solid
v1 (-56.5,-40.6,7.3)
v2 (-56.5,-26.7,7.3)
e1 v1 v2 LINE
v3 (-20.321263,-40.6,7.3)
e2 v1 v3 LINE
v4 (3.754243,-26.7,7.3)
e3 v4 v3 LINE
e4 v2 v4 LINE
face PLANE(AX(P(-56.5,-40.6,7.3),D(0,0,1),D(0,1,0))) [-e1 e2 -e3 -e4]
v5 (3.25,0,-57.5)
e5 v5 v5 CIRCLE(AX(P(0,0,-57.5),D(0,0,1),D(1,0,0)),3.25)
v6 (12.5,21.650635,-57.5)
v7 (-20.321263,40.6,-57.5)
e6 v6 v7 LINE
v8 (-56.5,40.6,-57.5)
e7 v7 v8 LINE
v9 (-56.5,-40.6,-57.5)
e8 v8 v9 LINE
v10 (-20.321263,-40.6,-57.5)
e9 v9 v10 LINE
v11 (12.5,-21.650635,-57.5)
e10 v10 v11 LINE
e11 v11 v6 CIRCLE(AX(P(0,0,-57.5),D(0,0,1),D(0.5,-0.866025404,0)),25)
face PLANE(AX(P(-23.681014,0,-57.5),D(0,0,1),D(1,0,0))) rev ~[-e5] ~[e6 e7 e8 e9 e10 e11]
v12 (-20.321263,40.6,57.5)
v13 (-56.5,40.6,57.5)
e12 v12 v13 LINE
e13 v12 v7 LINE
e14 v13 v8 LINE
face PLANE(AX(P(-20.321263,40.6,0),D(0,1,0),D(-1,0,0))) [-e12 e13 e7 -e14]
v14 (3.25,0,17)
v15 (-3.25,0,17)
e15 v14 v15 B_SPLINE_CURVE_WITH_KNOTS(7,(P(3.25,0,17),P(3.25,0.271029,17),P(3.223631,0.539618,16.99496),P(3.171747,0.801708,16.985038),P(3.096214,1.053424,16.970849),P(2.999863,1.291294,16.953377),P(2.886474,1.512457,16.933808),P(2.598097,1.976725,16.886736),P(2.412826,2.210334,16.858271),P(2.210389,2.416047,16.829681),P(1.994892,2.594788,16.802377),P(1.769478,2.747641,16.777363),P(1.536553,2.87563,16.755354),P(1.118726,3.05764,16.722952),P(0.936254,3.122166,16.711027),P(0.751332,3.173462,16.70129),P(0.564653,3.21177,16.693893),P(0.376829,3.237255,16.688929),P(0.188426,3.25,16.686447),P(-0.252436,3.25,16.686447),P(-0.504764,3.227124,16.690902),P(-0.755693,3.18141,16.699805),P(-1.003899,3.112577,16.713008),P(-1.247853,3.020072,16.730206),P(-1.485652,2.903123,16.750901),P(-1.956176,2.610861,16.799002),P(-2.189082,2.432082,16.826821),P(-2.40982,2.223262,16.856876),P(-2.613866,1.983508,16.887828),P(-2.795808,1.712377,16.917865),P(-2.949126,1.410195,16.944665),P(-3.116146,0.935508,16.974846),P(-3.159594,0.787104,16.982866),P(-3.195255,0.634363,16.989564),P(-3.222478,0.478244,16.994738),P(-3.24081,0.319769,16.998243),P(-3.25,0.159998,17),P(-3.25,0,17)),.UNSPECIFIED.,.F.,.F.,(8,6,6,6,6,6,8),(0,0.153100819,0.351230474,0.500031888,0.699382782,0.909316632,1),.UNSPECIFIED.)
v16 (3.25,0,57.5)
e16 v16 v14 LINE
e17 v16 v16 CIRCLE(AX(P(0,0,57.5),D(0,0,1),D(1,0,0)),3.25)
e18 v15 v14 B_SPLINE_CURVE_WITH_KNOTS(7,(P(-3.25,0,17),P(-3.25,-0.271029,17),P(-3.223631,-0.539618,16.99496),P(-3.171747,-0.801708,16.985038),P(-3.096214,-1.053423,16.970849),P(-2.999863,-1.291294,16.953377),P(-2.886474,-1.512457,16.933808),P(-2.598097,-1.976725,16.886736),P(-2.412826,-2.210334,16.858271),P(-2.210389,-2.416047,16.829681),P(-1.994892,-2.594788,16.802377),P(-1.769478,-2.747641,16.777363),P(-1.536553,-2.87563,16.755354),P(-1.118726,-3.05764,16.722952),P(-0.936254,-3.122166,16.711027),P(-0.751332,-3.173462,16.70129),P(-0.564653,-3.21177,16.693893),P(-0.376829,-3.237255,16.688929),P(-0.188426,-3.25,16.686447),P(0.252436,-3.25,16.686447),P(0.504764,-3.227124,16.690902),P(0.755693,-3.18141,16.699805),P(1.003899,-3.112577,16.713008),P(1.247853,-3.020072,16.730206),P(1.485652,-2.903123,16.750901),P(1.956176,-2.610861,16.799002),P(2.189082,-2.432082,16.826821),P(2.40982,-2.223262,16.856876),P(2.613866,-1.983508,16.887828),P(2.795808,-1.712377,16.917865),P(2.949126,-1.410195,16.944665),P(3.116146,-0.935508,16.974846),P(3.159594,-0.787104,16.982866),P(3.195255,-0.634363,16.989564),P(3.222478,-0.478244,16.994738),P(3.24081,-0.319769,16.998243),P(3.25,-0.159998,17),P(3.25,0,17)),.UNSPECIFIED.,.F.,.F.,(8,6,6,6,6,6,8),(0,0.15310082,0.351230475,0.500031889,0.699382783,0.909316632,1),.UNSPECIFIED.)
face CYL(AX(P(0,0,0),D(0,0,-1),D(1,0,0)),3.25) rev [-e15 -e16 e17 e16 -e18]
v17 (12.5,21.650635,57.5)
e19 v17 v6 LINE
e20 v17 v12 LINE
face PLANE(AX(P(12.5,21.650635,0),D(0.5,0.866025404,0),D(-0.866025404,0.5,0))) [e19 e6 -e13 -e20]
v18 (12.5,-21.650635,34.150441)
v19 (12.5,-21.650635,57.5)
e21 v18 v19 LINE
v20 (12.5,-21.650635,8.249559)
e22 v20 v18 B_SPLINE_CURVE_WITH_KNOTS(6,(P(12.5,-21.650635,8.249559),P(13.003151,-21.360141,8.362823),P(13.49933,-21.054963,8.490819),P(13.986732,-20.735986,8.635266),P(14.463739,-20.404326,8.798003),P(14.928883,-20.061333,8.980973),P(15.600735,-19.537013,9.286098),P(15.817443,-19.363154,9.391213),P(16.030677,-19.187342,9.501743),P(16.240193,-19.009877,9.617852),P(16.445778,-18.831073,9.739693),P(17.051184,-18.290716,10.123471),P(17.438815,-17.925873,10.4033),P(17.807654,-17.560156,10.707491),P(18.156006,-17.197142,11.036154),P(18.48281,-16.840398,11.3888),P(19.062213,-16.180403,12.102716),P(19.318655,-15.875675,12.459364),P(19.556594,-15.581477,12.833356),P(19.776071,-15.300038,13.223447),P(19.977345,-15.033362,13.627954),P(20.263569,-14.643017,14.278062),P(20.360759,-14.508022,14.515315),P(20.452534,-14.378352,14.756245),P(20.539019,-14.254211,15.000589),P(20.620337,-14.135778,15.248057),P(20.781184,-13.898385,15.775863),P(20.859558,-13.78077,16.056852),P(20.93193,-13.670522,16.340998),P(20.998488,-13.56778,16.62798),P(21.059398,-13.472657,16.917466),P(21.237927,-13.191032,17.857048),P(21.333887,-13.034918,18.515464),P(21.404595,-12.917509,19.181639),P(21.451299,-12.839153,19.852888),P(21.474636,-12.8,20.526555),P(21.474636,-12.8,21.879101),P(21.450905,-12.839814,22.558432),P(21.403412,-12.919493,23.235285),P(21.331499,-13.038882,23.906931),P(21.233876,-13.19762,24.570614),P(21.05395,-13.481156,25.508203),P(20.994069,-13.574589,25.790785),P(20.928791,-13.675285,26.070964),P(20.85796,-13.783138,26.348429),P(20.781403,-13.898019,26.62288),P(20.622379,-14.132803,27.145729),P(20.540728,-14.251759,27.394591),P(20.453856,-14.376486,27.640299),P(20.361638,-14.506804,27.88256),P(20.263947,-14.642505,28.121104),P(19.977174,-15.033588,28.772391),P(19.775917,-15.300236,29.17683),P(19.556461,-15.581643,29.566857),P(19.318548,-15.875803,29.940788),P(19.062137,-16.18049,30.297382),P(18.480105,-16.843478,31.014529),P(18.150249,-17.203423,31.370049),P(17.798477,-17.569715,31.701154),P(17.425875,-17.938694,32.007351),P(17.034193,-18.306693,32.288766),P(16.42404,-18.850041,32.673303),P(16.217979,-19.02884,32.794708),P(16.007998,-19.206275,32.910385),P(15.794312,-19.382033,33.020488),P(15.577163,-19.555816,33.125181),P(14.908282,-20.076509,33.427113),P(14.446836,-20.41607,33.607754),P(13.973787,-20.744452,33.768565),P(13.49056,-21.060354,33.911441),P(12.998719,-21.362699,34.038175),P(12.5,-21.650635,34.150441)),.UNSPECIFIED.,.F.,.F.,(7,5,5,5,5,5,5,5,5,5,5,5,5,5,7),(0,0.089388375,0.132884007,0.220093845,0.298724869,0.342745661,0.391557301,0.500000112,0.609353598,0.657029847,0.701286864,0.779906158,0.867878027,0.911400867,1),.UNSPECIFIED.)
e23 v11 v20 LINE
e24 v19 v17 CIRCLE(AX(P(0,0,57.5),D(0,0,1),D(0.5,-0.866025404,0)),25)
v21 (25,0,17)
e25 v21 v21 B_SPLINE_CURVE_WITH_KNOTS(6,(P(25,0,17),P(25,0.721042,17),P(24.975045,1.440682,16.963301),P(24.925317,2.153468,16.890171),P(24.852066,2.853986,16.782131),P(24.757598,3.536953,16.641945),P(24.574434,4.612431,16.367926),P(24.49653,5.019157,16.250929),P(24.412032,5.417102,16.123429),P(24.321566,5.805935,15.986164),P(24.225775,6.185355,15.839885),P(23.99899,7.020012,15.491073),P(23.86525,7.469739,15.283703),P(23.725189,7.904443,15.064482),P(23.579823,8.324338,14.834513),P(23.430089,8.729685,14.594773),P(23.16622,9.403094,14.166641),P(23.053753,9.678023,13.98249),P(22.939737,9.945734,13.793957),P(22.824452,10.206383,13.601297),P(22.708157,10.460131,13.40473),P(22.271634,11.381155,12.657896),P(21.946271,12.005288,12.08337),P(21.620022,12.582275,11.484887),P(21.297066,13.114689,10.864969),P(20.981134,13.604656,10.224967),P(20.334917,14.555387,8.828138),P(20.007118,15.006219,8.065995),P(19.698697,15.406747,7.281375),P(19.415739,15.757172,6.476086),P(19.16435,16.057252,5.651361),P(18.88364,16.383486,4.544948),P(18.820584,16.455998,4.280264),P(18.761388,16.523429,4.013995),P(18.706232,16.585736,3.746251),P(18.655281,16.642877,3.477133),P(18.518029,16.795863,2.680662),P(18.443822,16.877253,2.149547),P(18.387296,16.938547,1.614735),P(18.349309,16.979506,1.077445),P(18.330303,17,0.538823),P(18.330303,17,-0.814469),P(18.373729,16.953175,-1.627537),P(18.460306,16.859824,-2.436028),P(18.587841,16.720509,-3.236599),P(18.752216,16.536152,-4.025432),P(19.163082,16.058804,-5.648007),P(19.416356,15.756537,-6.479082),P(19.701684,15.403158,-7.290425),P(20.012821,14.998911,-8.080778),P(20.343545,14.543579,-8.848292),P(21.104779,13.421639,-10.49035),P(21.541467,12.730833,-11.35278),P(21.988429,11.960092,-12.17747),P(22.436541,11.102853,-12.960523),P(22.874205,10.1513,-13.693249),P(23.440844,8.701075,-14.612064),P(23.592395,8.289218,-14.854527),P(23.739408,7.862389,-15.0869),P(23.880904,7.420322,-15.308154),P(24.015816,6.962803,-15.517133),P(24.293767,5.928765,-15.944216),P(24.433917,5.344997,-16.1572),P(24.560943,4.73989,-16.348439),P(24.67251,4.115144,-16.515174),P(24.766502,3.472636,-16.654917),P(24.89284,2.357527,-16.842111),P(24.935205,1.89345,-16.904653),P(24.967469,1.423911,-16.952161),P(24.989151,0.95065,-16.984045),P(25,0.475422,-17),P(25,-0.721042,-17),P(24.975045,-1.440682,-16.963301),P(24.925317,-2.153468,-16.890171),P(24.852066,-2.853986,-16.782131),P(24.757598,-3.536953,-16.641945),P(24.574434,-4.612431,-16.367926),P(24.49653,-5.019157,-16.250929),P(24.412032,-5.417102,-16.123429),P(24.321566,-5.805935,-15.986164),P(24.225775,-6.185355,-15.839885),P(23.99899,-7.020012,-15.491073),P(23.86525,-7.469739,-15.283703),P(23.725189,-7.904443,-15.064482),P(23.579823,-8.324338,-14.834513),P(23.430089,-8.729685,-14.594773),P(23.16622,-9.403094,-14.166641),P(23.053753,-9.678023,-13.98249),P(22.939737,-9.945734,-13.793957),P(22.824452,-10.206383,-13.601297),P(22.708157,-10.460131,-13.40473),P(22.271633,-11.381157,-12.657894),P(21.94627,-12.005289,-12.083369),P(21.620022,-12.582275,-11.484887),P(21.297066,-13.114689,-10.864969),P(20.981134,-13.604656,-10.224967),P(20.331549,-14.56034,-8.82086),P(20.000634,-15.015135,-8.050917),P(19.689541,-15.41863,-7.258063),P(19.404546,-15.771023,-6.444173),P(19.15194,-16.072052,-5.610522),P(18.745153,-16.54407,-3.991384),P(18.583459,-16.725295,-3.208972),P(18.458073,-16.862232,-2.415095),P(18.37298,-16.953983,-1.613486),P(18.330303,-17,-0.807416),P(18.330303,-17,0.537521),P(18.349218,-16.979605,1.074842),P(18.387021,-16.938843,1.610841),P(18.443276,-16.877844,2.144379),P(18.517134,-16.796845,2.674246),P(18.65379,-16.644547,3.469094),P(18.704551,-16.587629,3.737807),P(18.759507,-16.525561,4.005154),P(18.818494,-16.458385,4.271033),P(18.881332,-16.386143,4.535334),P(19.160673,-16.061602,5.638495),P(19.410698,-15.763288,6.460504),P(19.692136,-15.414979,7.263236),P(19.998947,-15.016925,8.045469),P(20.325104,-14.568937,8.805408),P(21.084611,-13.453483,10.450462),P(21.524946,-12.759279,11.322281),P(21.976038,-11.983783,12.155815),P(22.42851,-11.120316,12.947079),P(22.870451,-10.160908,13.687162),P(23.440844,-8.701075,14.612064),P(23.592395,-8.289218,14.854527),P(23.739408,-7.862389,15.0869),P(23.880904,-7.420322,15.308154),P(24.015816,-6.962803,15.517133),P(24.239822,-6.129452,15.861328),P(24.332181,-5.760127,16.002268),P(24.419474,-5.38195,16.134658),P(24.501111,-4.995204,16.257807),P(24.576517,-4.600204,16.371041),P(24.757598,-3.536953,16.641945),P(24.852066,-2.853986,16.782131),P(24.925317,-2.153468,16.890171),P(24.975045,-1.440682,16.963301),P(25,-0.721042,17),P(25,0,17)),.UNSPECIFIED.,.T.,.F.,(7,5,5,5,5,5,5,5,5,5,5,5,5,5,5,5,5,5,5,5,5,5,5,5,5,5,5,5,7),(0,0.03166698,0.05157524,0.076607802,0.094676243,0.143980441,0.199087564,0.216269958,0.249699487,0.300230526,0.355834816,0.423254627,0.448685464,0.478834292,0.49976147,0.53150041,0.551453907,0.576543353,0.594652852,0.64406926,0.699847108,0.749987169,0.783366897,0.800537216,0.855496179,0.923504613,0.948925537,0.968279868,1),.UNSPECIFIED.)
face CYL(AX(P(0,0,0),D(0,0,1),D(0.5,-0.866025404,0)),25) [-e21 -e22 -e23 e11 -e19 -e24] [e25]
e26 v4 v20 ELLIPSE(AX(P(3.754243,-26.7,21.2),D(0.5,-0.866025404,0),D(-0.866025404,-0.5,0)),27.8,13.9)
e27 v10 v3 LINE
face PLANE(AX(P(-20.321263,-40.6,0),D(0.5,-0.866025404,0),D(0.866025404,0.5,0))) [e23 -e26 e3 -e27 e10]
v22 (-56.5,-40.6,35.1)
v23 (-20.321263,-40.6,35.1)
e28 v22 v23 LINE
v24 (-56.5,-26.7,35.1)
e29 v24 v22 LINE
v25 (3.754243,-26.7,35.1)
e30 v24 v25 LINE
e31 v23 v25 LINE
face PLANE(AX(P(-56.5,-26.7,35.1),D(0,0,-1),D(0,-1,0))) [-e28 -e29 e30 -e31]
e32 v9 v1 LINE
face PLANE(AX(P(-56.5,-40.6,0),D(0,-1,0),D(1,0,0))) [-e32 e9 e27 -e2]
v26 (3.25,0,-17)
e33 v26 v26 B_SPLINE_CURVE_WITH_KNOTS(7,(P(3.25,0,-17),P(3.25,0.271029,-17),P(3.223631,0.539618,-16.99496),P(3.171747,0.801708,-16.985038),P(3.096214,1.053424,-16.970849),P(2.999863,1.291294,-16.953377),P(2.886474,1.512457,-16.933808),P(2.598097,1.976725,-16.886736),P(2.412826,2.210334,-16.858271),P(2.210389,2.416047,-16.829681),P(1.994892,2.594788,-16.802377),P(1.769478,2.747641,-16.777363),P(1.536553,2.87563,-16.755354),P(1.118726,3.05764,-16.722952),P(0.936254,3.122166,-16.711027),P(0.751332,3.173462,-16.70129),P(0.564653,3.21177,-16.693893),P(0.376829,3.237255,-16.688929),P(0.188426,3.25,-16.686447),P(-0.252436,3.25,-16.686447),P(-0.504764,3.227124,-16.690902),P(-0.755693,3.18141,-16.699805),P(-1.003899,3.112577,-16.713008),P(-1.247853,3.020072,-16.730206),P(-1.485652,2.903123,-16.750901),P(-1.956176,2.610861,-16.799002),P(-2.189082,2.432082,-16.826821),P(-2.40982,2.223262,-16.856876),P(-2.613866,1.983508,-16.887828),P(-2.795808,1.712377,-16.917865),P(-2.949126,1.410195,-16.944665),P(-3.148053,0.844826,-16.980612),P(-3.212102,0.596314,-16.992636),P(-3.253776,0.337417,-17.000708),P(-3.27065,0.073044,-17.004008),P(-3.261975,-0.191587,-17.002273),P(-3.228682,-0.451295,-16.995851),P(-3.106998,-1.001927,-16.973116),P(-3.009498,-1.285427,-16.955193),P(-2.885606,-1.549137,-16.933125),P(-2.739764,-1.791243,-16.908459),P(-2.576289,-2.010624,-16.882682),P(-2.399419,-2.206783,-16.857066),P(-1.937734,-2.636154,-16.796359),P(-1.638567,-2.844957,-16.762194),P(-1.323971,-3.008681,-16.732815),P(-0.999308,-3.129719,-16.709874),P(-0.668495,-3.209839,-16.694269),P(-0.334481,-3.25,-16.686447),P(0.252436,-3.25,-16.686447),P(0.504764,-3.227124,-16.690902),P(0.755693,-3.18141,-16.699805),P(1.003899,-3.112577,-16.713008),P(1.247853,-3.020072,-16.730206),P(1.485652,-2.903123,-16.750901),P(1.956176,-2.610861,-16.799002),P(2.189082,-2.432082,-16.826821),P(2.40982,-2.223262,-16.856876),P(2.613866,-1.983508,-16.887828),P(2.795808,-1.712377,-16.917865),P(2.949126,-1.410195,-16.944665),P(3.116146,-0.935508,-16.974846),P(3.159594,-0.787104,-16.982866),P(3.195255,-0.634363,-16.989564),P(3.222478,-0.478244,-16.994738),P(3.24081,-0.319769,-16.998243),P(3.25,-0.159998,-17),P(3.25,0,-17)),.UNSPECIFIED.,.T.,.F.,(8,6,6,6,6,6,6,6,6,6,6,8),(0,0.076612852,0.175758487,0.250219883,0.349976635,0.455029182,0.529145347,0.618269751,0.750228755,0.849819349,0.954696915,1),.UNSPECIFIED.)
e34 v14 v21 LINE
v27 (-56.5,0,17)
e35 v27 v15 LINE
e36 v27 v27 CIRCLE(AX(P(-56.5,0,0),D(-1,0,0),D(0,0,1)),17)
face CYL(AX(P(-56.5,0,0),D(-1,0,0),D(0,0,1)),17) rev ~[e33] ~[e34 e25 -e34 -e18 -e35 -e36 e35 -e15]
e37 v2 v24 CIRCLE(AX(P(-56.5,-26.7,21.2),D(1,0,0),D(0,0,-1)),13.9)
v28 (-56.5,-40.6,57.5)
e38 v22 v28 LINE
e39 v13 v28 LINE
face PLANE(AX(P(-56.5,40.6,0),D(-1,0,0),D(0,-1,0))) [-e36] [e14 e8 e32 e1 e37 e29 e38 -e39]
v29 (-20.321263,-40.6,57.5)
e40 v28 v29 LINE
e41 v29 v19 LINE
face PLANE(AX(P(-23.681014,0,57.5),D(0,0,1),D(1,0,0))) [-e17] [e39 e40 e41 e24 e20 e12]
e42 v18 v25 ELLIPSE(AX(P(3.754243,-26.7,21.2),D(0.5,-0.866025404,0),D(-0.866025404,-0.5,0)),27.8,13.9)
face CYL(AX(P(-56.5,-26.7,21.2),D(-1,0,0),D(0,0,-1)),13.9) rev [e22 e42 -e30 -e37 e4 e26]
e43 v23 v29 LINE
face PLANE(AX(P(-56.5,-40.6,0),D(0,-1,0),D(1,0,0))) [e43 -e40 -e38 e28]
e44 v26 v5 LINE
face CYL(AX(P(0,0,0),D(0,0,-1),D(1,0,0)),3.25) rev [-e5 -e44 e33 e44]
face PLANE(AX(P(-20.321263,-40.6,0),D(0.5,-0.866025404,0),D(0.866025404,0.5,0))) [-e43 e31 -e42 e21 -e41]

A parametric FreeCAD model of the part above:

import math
import FreeCAD as App
import Part
import Sketcher

V = App.Vector
Q = App.Units.Quantity

doc = App.newDocument("Part")
body = doc.addObject("PartDesign::Body", "Body")

# Sketch on XY plane
sketch1 = body.newObject("Sketcher::SketchObject", "Sketch")
sketch1.AttachmentSupport = (doc.getObject("XY_Plane"), [""])
sketch1.MapMode = "FlatFace"
sketch1.addGeometry([
    Part.LineSegment(V(-56.5, 40.6, 0), V(-56.5, -40.6, 0)),  # 0
    Part.LineSegment(V(-56.5, -40.6, 0), V(-20.3, -40.6, 0)),  # 1
    Part.LineSegment(V(-20.3, -40.6, 0), V(12.5, -21.7, 0)),  # 2
    Part.ArcOfCircle(Part.Circle(V(0, 0, 0), V(0, 0, 1), 25), math.radians(-60), math.radians(60)),  # 3
    Part.LineSegment(V(12.5, 21.7, 0), V(-20.3, 40.6, 0)),  # 4
    Part.LineSegment(V(-20.3, 40.6, 0), V(-56.5, 40.6, 0)),  # 5
    Part.Circle(V(0, 0, 0), V(0, 0, 1), 3.2),  # 6
], False)
sketch1.addConstraint([
    Sketcher.Constraint("Coincident", 0, 2, 1, 1),
    Sketcher.Constraint("Coincident", 1, 2, 2, 1),
    Sketcher.Constraint("Tangent", 2, 2, 3, 1),
    Sketcher.Constraint("Tangent", 3, 2, 4, 1),
    Sketcher.Constraint("Coincident", 4, 2, 5, 1),
    Sketcher.Constraint("Coincident", 5, 2, 0, 1),
    Sketcher.Constraint("Vertical", 0),
    Sketcher.Constraint("Horizontal", 1),
    Sketcher.Constraint("Horizontal", 5),
    Sketcher.Constraint("Coincident", 3, 3, -1, 1),
    Sketcher.Constraint("Coincident", 6, 3, -1, 1),
    Sketcher.Constraint("Symmetric", 1, 2, 4, 2, -1),
    Sketcher.Constraint("Radius", 3, 25.0),
    Sketcher.Constraint("Diameter", 6, 6.5),
    Sketcher.Constraint("Angle", 2, Q("30 deg")),
    Sketcher.Constraint("DistanceY", 0, 2, 0, 1, 81.2),
    Sketcher.Constraint("DistanceX", 0, 2, 2, 2, 69.0),
])
pad1 = body.newObject("PartDesign::Pad", "Pad")
pad1.Profile = sketch1
pad1.Length = 115
pad1.Midplane = True

# Sketch on YZ plane
sketch2 = body.newObject("Sketcher::SketchObject", "Sketch001")
sketch2.AttachmentSupport = (doc.getObject("YZ_Plane"), [""])
sketch2.MapMode = "FlatFace"
sketch2.AttachmentOffset = App.Placement(V(0, 0, -56.5), App.Rotation())
sketch2.addGeometry([
    Part.Circle(V(0, 0, 0), V(0, 0, 1), 17),  # 0
    Part.LineSegment(V(-27, 7, 0), V(-41, 7, 0)),  # 1
    Part.LineSegment(V(-41, 7, 0), V(-41, 35, 0)),  # 2
    Part.LineSegment(V(-41, 35, 0), V(-27, 35, 0)),  # 3
    Part.ArcOfCircle(Part.Circle(V(-27, 21, 0), V(0, 0, 1), 14), math.radians(-90), math.radians(90)),  # 4
], False)
sketch2.addConstraint([
    Sketcher.Constraint("Coincident", 1, 2, 2, 1),
    Sketcher.Constraint("Coincident", 2, 2, 3, 1),
    Sketcher.Constraint("Tangent", 3, 2, 4, 2),
    Sketcher.Constraint("Tangent", 4, 1, 1, 1),
    Sketcher.Constraint("Horizontal", 1),
    Sketcher.Constraint("Vertical", 2),
    Sketcher.Constraint("Horizontal", 3),
    Sketcher.Constraint("Coincident", 0, 3, -1, 1),
    Sketcher.Constraint("Diameter", 0, 34.0),
    Sketcher.Constraint("Radius", 4, 13.9),
    Sketcher.Constraint("DistanceX", 1, 2, 1, 1, 13.9),
    Sketcher.Constraint("DistanceX", 4, 3, -1, 1, 26.7),
    Sketcher.Constraint("DistanceY", -1, 1, 4, 3, 21.2),
])
pocket1 = body.newObject("PartDesign::Pocket", "Pocket")
pocket1.Profile = sketch2
pocket1.Type = "ThroughAll"
pocket1.Reversed = True

doc.recompute()
